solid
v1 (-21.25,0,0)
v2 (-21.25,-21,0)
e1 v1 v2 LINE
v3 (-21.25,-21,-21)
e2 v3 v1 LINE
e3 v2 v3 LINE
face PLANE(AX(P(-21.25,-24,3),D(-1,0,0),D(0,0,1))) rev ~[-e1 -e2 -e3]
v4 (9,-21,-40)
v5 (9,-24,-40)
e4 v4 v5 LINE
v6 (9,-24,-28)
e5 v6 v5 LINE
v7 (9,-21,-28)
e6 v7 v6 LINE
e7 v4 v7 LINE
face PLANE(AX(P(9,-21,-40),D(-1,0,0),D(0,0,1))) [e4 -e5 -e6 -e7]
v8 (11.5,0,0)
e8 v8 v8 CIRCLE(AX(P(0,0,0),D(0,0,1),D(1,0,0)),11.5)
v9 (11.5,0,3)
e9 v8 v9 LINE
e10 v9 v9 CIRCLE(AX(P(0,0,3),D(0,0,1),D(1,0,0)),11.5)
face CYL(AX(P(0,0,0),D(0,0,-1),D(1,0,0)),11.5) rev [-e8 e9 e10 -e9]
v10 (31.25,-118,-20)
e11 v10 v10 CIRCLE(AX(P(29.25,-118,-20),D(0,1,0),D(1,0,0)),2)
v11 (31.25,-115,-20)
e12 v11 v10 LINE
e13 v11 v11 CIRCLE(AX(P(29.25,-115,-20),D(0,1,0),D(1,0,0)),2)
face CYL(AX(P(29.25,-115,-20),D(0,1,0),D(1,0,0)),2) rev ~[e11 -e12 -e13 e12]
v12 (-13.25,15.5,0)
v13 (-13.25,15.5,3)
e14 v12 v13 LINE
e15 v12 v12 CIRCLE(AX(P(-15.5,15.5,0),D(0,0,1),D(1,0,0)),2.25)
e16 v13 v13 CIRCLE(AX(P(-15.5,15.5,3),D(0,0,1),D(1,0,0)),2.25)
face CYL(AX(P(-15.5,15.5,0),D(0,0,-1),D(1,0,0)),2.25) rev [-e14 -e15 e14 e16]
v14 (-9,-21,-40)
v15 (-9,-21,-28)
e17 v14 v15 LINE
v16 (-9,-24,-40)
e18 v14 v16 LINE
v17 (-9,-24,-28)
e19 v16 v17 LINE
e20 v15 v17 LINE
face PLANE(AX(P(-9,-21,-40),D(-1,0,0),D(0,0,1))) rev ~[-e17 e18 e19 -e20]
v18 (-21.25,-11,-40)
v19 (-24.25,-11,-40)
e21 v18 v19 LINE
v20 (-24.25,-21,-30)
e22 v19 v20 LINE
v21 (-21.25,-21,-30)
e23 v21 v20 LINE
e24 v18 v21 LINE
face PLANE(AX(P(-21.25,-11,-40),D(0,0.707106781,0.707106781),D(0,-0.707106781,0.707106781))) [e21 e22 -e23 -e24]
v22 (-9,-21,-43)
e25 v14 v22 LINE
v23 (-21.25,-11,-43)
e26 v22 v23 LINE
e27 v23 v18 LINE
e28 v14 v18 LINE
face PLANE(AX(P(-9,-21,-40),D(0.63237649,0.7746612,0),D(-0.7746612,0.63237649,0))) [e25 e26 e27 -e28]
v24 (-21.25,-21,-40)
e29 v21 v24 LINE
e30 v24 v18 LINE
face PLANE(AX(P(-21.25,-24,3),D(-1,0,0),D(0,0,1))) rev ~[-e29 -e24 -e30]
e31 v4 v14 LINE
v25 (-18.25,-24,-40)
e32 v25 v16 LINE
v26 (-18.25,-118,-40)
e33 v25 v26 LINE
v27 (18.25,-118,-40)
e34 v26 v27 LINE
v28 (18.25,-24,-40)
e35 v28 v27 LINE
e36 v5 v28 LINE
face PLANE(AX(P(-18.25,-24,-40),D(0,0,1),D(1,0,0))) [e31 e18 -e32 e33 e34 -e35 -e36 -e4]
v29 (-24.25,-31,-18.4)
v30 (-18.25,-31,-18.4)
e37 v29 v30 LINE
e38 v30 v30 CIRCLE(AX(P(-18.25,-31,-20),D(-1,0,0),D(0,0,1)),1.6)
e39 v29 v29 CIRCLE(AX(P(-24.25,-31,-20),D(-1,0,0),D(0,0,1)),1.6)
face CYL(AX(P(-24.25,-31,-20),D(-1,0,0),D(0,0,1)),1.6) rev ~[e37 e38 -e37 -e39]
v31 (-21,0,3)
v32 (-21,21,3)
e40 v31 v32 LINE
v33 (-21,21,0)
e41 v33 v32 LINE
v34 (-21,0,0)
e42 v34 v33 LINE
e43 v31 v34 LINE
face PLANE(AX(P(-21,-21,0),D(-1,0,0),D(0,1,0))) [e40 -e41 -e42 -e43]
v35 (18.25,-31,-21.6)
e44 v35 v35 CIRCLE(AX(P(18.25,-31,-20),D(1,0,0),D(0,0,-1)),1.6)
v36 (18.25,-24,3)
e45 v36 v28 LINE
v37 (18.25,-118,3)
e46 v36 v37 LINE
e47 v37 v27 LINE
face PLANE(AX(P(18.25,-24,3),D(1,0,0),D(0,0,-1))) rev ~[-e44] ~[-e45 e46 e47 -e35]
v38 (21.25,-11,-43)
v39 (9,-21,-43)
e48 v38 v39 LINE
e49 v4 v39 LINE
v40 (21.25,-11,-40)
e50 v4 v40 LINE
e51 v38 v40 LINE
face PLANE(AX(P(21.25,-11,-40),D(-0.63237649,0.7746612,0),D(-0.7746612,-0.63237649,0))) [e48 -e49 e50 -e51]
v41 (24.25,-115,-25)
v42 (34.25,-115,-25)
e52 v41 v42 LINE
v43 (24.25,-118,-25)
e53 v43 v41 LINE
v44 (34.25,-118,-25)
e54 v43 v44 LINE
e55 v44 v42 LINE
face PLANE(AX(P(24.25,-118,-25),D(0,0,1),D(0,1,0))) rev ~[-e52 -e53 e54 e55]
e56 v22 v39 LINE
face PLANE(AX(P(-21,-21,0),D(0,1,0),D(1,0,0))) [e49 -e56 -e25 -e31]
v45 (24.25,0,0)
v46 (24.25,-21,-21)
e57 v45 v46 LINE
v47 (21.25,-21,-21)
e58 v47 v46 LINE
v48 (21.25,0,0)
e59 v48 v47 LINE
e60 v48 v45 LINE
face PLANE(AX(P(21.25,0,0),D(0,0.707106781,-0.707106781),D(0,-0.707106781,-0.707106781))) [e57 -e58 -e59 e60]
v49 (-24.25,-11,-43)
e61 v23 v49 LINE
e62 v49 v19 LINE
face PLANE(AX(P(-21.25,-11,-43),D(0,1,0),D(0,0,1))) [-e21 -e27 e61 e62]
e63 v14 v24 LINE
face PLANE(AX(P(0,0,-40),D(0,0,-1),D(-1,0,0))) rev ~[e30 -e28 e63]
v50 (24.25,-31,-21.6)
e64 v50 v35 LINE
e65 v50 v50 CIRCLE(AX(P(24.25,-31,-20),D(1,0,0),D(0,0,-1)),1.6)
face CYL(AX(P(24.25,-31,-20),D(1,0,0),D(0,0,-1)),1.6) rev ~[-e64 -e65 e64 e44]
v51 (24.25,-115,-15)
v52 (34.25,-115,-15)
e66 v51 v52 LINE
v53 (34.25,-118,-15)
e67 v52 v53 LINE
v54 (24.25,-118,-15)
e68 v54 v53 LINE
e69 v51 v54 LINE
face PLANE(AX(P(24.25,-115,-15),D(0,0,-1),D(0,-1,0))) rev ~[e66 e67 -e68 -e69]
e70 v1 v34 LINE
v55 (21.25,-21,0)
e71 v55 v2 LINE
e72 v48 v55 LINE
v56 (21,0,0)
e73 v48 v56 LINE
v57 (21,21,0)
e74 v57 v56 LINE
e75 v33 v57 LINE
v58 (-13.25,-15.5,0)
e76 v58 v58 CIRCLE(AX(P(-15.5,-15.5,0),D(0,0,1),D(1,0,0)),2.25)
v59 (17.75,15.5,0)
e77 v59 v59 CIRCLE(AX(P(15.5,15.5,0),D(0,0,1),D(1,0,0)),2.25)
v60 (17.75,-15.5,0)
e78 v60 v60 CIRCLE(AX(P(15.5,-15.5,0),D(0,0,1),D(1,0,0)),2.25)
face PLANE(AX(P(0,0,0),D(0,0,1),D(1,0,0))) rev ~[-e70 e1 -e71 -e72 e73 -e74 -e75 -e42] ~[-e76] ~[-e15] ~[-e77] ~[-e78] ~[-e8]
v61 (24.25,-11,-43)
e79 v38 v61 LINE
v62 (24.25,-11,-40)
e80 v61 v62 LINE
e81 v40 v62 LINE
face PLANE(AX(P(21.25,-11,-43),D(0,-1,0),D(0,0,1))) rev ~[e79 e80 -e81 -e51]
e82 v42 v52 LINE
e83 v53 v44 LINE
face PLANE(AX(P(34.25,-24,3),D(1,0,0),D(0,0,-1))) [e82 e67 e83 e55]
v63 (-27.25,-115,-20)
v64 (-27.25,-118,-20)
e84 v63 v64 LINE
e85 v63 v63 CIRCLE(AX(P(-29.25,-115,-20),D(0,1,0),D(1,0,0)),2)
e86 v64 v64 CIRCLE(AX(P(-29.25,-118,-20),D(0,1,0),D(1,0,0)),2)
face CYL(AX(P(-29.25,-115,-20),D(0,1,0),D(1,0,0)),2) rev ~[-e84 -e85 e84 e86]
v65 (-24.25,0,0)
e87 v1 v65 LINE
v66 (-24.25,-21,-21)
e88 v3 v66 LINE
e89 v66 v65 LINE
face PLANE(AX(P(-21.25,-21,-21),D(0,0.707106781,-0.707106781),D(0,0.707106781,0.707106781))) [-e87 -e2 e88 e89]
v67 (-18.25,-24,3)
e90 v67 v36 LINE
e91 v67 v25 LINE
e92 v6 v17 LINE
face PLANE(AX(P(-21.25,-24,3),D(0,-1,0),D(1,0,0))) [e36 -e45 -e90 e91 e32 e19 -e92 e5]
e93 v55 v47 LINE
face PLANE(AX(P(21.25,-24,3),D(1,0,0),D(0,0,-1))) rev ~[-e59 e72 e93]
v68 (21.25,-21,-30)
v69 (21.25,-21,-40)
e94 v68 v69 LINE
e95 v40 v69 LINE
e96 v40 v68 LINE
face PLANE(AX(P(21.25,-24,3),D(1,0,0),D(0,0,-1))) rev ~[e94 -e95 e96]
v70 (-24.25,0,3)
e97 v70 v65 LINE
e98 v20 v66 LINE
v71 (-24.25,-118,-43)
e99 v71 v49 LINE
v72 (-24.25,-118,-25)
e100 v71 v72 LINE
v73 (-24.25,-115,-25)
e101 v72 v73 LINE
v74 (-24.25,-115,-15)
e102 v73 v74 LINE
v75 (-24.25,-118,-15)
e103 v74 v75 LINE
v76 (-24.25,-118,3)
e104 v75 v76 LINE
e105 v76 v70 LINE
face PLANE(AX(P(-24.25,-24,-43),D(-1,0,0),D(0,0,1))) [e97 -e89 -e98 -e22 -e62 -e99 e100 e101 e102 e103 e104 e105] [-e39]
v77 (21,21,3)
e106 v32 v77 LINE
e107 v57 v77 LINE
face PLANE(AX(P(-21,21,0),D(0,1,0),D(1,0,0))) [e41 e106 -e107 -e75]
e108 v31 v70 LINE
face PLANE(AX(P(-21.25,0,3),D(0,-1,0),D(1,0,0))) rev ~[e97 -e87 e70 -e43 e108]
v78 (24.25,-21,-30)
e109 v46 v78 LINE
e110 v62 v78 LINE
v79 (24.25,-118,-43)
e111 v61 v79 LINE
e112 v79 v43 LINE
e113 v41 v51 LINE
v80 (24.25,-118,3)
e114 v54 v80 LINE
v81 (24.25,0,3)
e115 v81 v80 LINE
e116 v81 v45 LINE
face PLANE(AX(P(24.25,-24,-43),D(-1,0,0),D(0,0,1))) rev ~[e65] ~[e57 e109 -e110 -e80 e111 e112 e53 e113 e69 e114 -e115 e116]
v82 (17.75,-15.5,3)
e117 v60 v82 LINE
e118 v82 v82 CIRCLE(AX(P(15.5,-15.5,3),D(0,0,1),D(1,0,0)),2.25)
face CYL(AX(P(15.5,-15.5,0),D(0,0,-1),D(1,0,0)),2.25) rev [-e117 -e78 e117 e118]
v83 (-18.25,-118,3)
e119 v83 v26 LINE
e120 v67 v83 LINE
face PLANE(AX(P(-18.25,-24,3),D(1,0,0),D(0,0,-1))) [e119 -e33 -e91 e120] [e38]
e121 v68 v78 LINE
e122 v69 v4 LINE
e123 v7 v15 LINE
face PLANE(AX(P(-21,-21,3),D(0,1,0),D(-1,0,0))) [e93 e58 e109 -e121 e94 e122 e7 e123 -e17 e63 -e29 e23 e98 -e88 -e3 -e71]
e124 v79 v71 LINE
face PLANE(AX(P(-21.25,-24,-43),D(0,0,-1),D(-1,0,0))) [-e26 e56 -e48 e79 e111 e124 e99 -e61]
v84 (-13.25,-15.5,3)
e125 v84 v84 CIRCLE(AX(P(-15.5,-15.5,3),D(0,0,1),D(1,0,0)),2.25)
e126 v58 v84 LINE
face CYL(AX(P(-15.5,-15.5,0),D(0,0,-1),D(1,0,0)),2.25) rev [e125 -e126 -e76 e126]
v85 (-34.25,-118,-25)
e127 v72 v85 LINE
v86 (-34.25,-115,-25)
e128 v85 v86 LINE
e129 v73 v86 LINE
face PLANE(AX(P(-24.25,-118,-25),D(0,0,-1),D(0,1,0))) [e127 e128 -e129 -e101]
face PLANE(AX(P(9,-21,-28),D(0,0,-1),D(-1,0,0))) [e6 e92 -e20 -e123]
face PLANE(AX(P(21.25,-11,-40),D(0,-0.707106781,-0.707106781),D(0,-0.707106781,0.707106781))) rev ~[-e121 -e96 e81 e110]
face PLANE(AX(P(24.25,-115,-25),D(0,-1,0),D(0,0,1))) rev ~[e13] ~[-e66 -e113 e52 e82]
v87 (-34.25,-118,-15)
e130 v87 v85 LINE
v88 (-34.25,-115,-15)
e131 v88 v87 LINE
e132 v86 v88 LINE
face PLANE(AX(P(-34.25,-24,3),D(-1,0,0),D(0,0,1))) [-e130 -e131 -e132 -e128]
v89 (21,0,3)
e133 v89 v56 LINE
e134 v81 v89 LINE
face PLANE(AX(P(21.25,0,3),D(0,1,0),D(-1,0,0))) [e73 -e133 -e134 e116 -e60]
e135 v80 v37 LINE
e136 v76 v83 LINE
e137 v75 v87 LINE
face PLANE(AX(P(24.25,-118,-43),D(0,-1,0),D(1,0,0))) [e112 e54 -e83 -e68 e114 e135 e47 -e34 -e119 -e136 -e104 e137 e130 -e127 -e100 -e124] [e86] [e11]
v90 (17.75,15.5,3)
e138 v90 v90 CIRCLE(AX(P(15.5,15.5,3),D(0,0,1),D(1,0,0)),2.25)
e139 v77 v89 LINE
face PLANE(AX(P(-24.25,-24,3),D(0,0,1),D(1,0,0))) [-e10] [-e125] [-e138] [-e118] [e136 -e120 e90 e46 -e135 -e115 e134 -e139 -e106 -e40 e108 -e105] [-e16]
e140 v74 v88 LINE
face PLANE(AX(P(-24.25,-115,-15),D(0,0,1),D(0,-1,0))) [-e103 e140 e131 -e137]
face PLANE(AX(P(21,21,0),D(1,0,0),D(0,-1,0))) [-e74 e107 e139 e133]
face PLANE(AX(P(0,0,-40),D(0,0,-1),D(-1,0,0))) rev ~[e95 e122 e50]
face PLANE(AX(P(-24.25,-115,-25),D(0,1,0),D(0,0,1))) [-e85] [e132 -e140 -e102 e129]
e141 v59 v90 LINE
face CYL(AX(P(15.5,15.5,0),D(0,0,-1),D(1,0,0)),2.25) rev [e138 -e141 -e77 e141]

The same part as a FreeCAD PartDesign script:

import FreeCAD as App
import Part
import Sketcher

doc = App.newDocument("Part")
body = doc.addObject("PartDesign::Body", "Body")

# Sketch on XY plane
sketch1 = body.newObject("Sketcher::SketchObject", "Sketch")
sketch1.AttachmentSupport = (doc.getObject("XY_Plane"), [""])
sketch1.MapMode = "FlatFace"
sketch1.addGeometry([
    Part.LineSegment(App.Vector(21, 21, 0), App.Vector(-21, 21, 0)),  # 0
    Part.LineSegment(App.Vector(-21, 21, 0), App.Vector(-21, -21, 0)),  # 1
    Part.LineSegment(App.Vector(-21, -21, 0), App.Vector(21, -21, 0)),  # 2
    Part.LineSegment(App.Vector(21, -21, 0), App.Vector(21, 21, 0)),  # 3
    Part.Circle(App.Vector(-15.5, -15.5, 0), App.Vector(0, 0, 1), 2.2),  # 4
    Part.Circle(App.Vector(15.5, -15.5, 0), App.Vector(0, 0, 1), 2.2),  # 5
    Part.Circle(App.Vector(-15.5, 15.5, 0), App.Vector(0, 0, 1), 2.2),  # 6
    Part.Circle(App.Vector(0, 0, 0), App.Vector(0, 0, 1), 11.5),  # 7
    Part.Circle(App.Vector(15.5, 15.5, 0), App.Vector(0, 0, 1), 2.2),  # 8
], False)
sketch1.addConstraint([
    Sketcher.Constraint("Coincident", 0, 2, 1, 1),
    Sketcher.Constraint("Coincident", 1, 2, 2, 1),
    Sketcher.Constraint("Coincident", 2, 2, 3, 1),
    Sketcher.Constraint("Coincident", 3, 2, 0, 1),
    Sketcher.Constraint("Horizontal", 0),
    Sketcher.Constraint("Vertical", 1),
    Sketcher.Constraint("Horizontal", 2),
    Sketcher.Constraint("Vertical", 3),
    Sketcher.Constraint("Coincident", 7, 3, -1, 1),
    Sketcher.Constraint("Equal", 4, 5),
    Sketcher.Constraint("Equal", 5, 6),
    Sketcher.Constraint("Equal", 6, 8),
    Sketcher.Constraint("Symmetric", 5, 3, 6, 3, -1, 1),
    Sketcher.Constraint("Symmetric", 4, 3, 8, 3, -1, 1),
    Sketcher.Constraint("Symmetric", 0, 2, 2, 2, -1, 1),
    Sketcher.Constraint("Symmetric", 4, 3, 5, 3, -2),
    Sketcher.Constraint("Equal", 2, 1),
    Sketcher.Constraint("Diameter", 7, 23.0),
    Sketcher.Constraint("Diameter", 4, 4.5),
    Sketcher.Constraint("DistanceX", 0, 2, 0, 1, 42.0),
    Sketcher.Constraint("DistanceX", 4, 3, 5, 3, 31.0),
    Sketcher.Constraint("DistanceY", 4, 3, 6, 3, 31.0),
])
pad1 = body.newObject("PartDesign::Pad", "Pad")
pad1.Profile = sketch1
pad1.Length = 3

# Sketch on XY plane
sketch2 = body.newObject("Sketcher::SketchObject", "Sketch001")
sketch2.AttachmentSupport = (doc.getObject("XY_Plane"), [""])
sketch2.MapMode = "FlatFace"
sketch2.AttachmentOffset = App.Placement(App.Vector(0, 0, 3), App.Rotation())
sketch2.addGeometry([
    Part.LineSegment(App.Vector(-21.2, -21, 0), App.Vector(-21.2, -24, 0)),
    Part.LineSegment(App.Vector(-21.2, -24, 0), App.Vector(21.2, -24, 0)),
    Part.LineSegment(App.Vector(21.2, -24, 0), App.Vector(21.2, -21, 0)),
    Part.LineSegment(App.Vector(21.2, -21, 0), App.Vector(-21.2, -21, 0)),
], False)
sketch2.addConstraint([
    Sketcher.Constraint("Coincident", 0, 2, 1, 1),
    Sketcher.Constraint("Coincident", 1, 2, 2, 1),
    Sketcher.Constraint("Coincident", 2, 2, 3, 1),
    Sketcher.Constraint("Coincident", 3, 2, 0, 1),
    Sketcher.Constraint("Vertical", 0),
    Sketcher.Constraint("Horizontal", 1),
    Sketcher.Constraint("Vertical", 2),
    Sketcher.Constraint("Horizontal", 3),
    Sketcher.Constraint("DistanceY", 0, 2, 0, 1, 3.0),
    Sketcher.Constraint("DistanceX", 1, 1, 1, 2, 42.5),
    Sketcher.Constraint("DistanceY", 0, 2, -1, 1, 24.0),
    Sketcher.Constraint("DistanceX", 0, 2, -1, 1, 21.25),
])
pad2 = body.newObject("PartDesign::Pad", "Pad001")
pad2.Profile = sketch2
pad2.Length = 43
pad2.Reversed = True

# Sketch on XZ plane
sketch3 = body.newObject("Sketcher::SketchObject", "Sketch002")
sketch3.AttachmentSupport = (doc.getObject("XZ_Plane"), [""])
sketch3.MapMode = "FlatFace"
sketch3.AttachmentOffset = App.Placement(App.Vector(0, 0, 21), App.Rotation())
sketch3.addGeometry([
    Part.LineSegment(App.Vector(-9, -28, 0), App.Vector(9, -28, 0)),
    Part.LineSegment(App.Vector(9, -28, 0), App.Vector(9, -40, 0)),
    Part.LineSegment(App.Vector(9, -40, 0), App.Vector(-9, -40, 0)),
    Part.LineSegment(App.Vector(-9, -40, 0), App.Vector(-9, -28, 0)),
], False)
sketch3.addConstraint([
    Sketcher.Constraint("Coincident", 0, 2, 1, 1),
    Sketcher.Constraint("Coincident", 1, 2, 2, 1),
    Sketcher.Constraint("Coincident", 2, 2, 3, 1),
    Sketcher.Constraint("Coincident", 3, 2, 0, 1),
    Sketcher.Constraint("Horizontal", 0),
    Sketcher.Constraint("Vertical", 1),
    Sketcher.Constraint("Horizontal", 2),
    Sketcher.Constraint("Vertical", 3),
    Sketcher.Constraint("DistanceX", 0, 1, 0, 2, 18.0),
    Sketcher.Constraint("DistanceY", 1, 2, 1, 1, 12.0),
    Sketcher.Constraint("DistanceX", -1, 1, 0, 2, 9.0),
    Sketcher.Constraint("DistanceY", 0, 2, -1, 1, 28.0),
])
pocket1 = body.newObject("PartDesign::Pocket", "Pocket")
pocket1.Profile = sketch3
pocket1.Length = 3
pocket1.Reversed = True

# Sketch on YZ plane
sketch4 = body.newObject("Sketcher::SketchObject", "Sketch003")
sketch4.AttachmentSupport = (doc.getObject("YZ_Plane"), [""])
sketch4.MapMode = "FlatFace"
sketch4.AttachmentOffset = App.Placement(App.Vector(0, 0, 21.25), App.Rotation())
sketch4.addGeometry([
    Part.LineSegment(App.Vector(-24, -30, 0), App.Vector(-24, -43, 0)),  # 0
    Part.LineSegment(App.Vector(-24, -43, 0), App.Vector(-11, -43, 0)),  # 1
    Part.LineSegment(App.Vector(-11, -43, 0), App.Vector(-11, -40, 0)),  # 2
    Part.LineSegment(App.Vector(-11, -40, 0), App.Vector(-21, -30, 0)),  # 3
    Part.LineSegment(App.Vector(-21, -30, 0), App.Vector(-24, -30, 0)),  # 4
    Part.LineSegment(App.Vector(-24, 3, 0), App.Vector(-24, -21, 0)),  # 5
    Part.LineSegment(App.Vector(-24, -21, 0), App.Vector(-21, -21, 0)),  # 6
    Part.LineSegment(App.Vector(-21, -21, 0), App.Vector(0, 0, 0)),  # 7
    Part.LineSegment(App.Vector(0, 0, 0), App.Vector(0, 3, 0)),  # 8
    Part.LineSegment(App.Vector(0, 3, 0), App.Vector(-24, 3, 0)),  # 9
], False)
sketch4.addConstraint([
    Sketcher.Constraint("Coincident", 0, 2, 1, 1),
    Sketcher.Constraint("Coincident", 1, 2, 2, 1),
    Sketcher.Constraint("Coincident", 2, 2, 3, 1),
    Sketcher.Constraint("Coincident", 3, 2, 4, 1),
    Sketcher.Constraint("Coincident", 4, 2, 0, 1),
    Sketcher.Constraint("Coincident", 5, 2, 6, 1),
    Sketcher.Constraint("Coincident", 6, 2, 7, 1),
    Sketcher.Constraint("Coincident", 7, 2, 8, 1),
    Sketcher.Constraint("Coincident", 8, 2, 9, 1),
    Sketcher.Constraint("Coincident", 9, 2, 5, 1),
    Sketcher.Constraint("Vertical", 0),
    Sketcher.Constraint("Horizontal", 1),
    Sketcher.Constraint("Vertical", 2),
    Sketcher.Constraint("Horizontal", 4),
    Sketcher.Constraint("Vertical", 5),
    Sketcher.Constraint("Horizontal", 6),
    Sketcher.Constraint("Vertical", 8),
    Sketcher.Constraint("Horizontal", 9),
    Sketcher.Constraint("Coincident", 7, 2, -1, 1),
    Sketcher.Constraint("Perpendicular", 3, 7),
    Sketcher.Constraint("Vertical", 4, 2, 5, 2),
    Sketcher.Constraint("Vertical", 3, 2, 6, 2),
    Sketcher.Constraint("Equal", 1, 0),
    Sketcher.Constraint("Equal", 6, 2),
    Sketcher.Constraint("Equal", 9, 5),
    Sketcher.Constraint("DistanceX", 1, 1, 1, 2, 13.0),
    Sketcher.Constraint("DistanceX", 4, 2, 4, 1, 3.0),
    Sketcher.Constraint("DistanceX", 9, 2, 9, 1, 24.0),
    Sketcher.Constraint("DistanceY", 0, 2, -1, 1, 43.0),
])
pad3 = body.newObject("PartDesign::Pad", "Pad002")
pad3.Profile = sketch4
pad3.Length = 3

# Sketch on YZ plane
sketch5 = body.newObject("Sketcher::SketchObject", "Sketch004")
sketch5.AttachmentSupport = (doc.getObject("YZ_Plane"), [""])
sketch5.MapMode = "FlatFace"
sketch5.AttachmentOffset = App.Placement(App.Vector(0, 0, -21.25), App.Rotation())
sketch5.addGeometry([
    Part.LineSegment(App.Vector(-11, -43, 0), App.Vector(-24, -43, 0)),  # 0
    Part.LineSegment(App.Vector(-24, -43, 0), App.Vector(-24, -30, 0)),  # 1
    Part.LineSegment(App.Vector(-24, -30, 0), App.Vector(-21, -30, 0)),  # 2
    Part.LineSegment(App.Vector(-21, -30, 0), App.Vector(-11, -40, 0)),  # 3
    Part.LineSegment(App.Vector(-11, -40, 0), App.Vector(-11, -43, 0)),  # 4
    Part.LineSegment(App.Vector(-21, -21, 0), App.Vector(-24, -21, 0)),  # 5
    Part.LineSegment(App.Vector(-24, -21, 0), App.Vector(-24, 3, 0)),  # 6
    Part.LineSegment(App.Vector(-24, 3, 0), App.Vector(0, 3, 0)),  # 7
    Part.LineSegment(App.Vector(0, 3, 0), App.Vector(0, 0, 0)),  # 8
    Part.LineSegment(App.Vector(0, 0, 0), App.Vector(-21, -21, 0)),  # 9
], False)
sketch5.addConstraint([
    Sketcher.Constraint("Coincident", 0, 2, 1, 1),
    Sketcher.Constraint("Coincident", 1, 2, 2, 1),
    Sketcher.Constraint("Coincident", 2, 2, 3, 1),
    Sketcher.Constraint("Coincident", 3, 2, 4, 1),
    Sketcher.Constraint("Coincident", 4, 2, 0, 1),
    Sketcher.Constraint("Coincident", 5, 2, 6, 1),
    Sketcher.Constraint("Coincident", 6, 2, 7, 1),
    Sketcher.Constraint("Coincident", 7, 2, 8, 1),
    Sketcher.Constraint("Coincident", 8, 2, 9, 1),
    Sketcher.Constraint("Coincident", 9, 2, 5, 1),
    Sketcher.Constraint("Horizontal", 0),
    Sketcher.Constraint("Vertical", 1),
    Sketcher.Constraint("Horizontal", 2),
    Sketcher.Constraint("Vertical", 4),
    Sketcher.Constraint("Horizontal", 5),
    Sketcher.Constraint("Vertical", 6),
    Sketcher.Constraint("Horizontal", 7),
    Sketcher.Constraint("Vertical", 8),
    Sketcher.Constraint("Coincident", 8, 2, -1, 1),
    Sketcher.Constraint("Perpendicular", 3, 9),
    Sketcher.Constraint("Vertical", 1, 2, 5, 2),
    Sketcher.Constraint("Vertical", 2, 2, 9, 2),
    Sketcher.Constraint("Equal", 0, 1),
    Sketcher.Constraint("Equal", 5, 4),
    Sketcher.Constraint("Equal", 7, 6),
    Sketcher.Constraint("DistanceX", 0, 2, 0, 1, 13.0),
    Sketcher.Constraint("DistanceX", 2, 1, 2, 2, 3.0),
    Sketcher.Constraint("DistanceX", 7, 1, 7, 2, 24.0),
    Sketcher.Constraint("DistanceY", 0, 2, -1, 1, 43.0),
])
pad4 = body.newObject("PartDesign::Pad", "Pad003")
pad4.Profile = sketch5
pad4.Length = 3
pad4.Reversed = True

# Sketch on XY plane
sketch6 = body.newObject("Sketcher::SketchObject", "Sketch005")
sketch6.AttachmentSupport = (doc.getObject("XY_Plane"), [""])
sketch6.MapMode = "FlatFace"
sketch6.AttachmentOffset = App.Placement(App.Vector(0, 0, -40), App.Rotation())
sketch6.addGeometry([
    Part.LineSegment(App.Vector(-21.2, -11, 0), App.Vector(-9, -21, 0)),  # 0
    Part.LineSegment(App.Vector(-9, -21, 0), App.Vector(-9, -24, 0)),  # 1
    Part.LineSegment(App.Vector(-9, -24, 0), App.Vector(-21.2, -24, 0)),  # 2
    Part.LineSegment(App.Vector(-21.2, -24, 0), App.Vector(-21.2, -11, 0)),  # 3
    Part.LineSegment(App.Vector(21.2, -24, 0), App.Vector(9, -24, 0)),  # 4
    Part.LineSegment(App.Vector(9, -24, 0), App.Vector(9, -21, 0)),  # 5
    Part.LineSegment(App.Vector(9, -21, 0), App.Vector(21.2, -11, 0)),  # 6
    Part.LineSegment(App.Vector(21.2, -11, 0), App.Vector(21.2, -24, 0)),  # 7
], False)
sketch6.addConstraint([
    Sketcher.Constraint("Coincident", 0, 2, 1, 1),
    Sketcher.Constraint("Coincident", 1, 2, 2, 1),
    Sketcher.Constraint("Coincident", 2, 2, 3, 1),
    Sketcher.Constraint("Coincident", 3, 2, 0, 1),
    Sketcher.Constraint("Coincident", 4, 2, 5, 1),
    Sketcher.Constraint("Coincident", 5, 2, 6, 1),
    Sketcher.Constraint("Coincident", 6, 2, 7, 1),
    Sketcher.Constraint("Coincident", 7, 2, 4, 1),
    Sketcher.Constraint("Vertical", 1),
    Sketcher.Constraint("Horizontal", 2),
    Sketcher.Constraint("Vertical", 3),
    Sketcher.Constraint("Horizontal", 4),
    Sketcher.Constraint("Vertical", 5),
    Sketcher.Constraint("Vertical", 7),
    Sketcher.Constraint("Symmetric", 1, 2, 4, 2, -2),
    Sketcher.Constraint("Symmetric", 3, 2, 6, 2, -2),
    Sketcher.Constraint("Horizontal", 0, 2, 5, 2),
    Sketcher.Constraint("DistanceY", 1, 2, 1, 1, 3.0),
    Sketcher.Constraint("DistanceY", 3, 1, 3, 2, 13.0),
    Sketcher.Constraint("DistanceX", 0, 2, -1, 1, 9.0),
    Sketcher.Constraint("DistanceY", 0, 2, -1, 1, 21.0),
    Sketcher.Constraint("DistanceX", 2, 2, 2, 1, 12.25),
])
pad5 = body.newObject("PartDesign::Pad", "Pad004")
pad5.Profile = sketch6
pad5.Length = 3
pad5.Reversed = True

# Sketch on XZ plane
sketch7 = body.newObject("Sketcher::SketchObject", "Sketch006")
sketch7.AttachmentSupport = (doc.getObject("XZ_Plane"), [""])
sketch7.MapMode = "FlatFace"
sketch7.AttachmentOffset = App.Placement(App.Vector(0, 0, 21), App.Rotation())
sketch7.addGeometry([
    Part.LineSegment(App.Vector(24.2, -21, 0), App.Vector(24.2, -30, 0)),  # 0
    Part.LineSegment(App.Vector(24.2, -30, 0), App.Vector(21.2, -30, 0)),  # 1
    Part.LineSegment(App.Vector(21.2, -30, 0), App.Vector(21.2, -21, 0)),  # 2
    Part.LineSegment(App.Vector(21.2, -21, 0), App.Vector(24.2, -21, 0)),  # 3
    Part.LineSegment(App.Vector(-9, -40, 0), App.Vector(9, -40, 0)),  # 4
    Part.LineSegment(App.Vector(9, -40, 0), App.Vector(9, -43, 0)),  # 5
    Part.LineSegment(App.Vector(9, -43, 0), App.Vector(-9, -43, 0)),  # 6
    Part.LineSegment(App.Vector(-9, -43, 0), App.Vector(-9, -40, 0)),  # 7
    Part.LineSegment(App.Vector(-24.2, -21, 0), App.Vector(-21.2, -21, 0)),  # 8
    Part.LineSegment(App.Vector(-21.2, -21, 0), App.Vector(-21.2, -30, 0)),  # 9
    Part.LineSegment(App.Vector(-21.2, -30, 0), App.Vector(-24.2, -30, 0)),  # 10
    Part.LineSegment(App.Vector(-24.2, -30, 0), App.Vector(-24.2, -21, 0)),  # 11
], False)
sketch7.addConstraint([
    Sketcher.Constraint("Coincident", 0, 2, 1, 1),
    Sketcher.Constraint("Coincident", 1, 2, 2, 1),
    Sketcher.Constraint("Coincident", 2, 2, 3, 1),
    Sketcher.Constraint("Coincident", 3, 2, 0, 1),
    Sketcher.Constraint("Coincident", 4, 2, 5, 1),
    Sketcher.Constraint("Coincident", 5, 2, 6, 1),
    Sketcher.Constraint("Coincident", 6, 2, 7, 1),
    Sketcher.Constraint("Coincident", 7, 2, 4, 1),
    Sketcher.Constraint("Coincident", 8, 2, 9, 1),
    Sketcher.Constraint("Coincident", 9, 2, 10, 1),
    Sketcher.Constraint("Coincident", 10, 2, 11, 1),
    Sketcher.Constraint("Coincident", 11, 2, 8, 1),
    Sketcher.Constraint("Vertical", 0),
    Sketcher.Constraint("Horizontal", 1),
    Sketcher.Constraint("Vertical", 2),
    Sketcher.Constraint("Horizontal", 3),
    Sketcher.Constraint("Horizontal", 4),
    Sketcher.Constraint("Vertical", 5),
    Sketcher.Constraint("Horizontal", 6),
    Sketcher.Constraint("Vertical", 7),
    Sketcher.Constraint("Horizontal", 8),
    Sketcher.Constraint("Vertical", 9),
    Sketcher.Constraint("Horizontal", 10),
    Sketcher.Constraint("Vertical", 11),
    Sketcher.Constraint("Symmetric", 2, 2, 8, 2, -2),
    Sketcher.Constraint("Symmetric", 0, 2, 10, 2, -2),
    Sketcher.Constraint("Equal", 10, 5),
    Sketcher.Constraint("DistanceX", 1, 2, 1, 1, 3.0),
    Sketcher.Constraint("DistanceX", 4, 1, 4, 2, 18.0),
    Sketcher.Constraint("DistanceY", 0, 2, 0, 1, 9.0),
    Sketcher.Constraint("DistanceY", 0, 2, -1, 1, 30.0),
    Sketcher.Constraint("DistanceX", -1, 1, 4, 2, 9.0),
    Sketcher.Constraint("DistanceY", 4, 2, -1, 1, 40.0),
    Sketcher.Constraint("DistanceX", 8, 2, 2, 2, 42.5),
])
pad6 = body.newObject("PartDesign::Pad", "Pad005")
pad6.Profile = sketch7
pad6.Length = 3

# Sketch on XY plane
sketch8 = body.newObject("Sketcher::SketchObject", "Sketch007")
sketch8.AttachmentSupport = (doc.getObject("XY_Plane"), [""])
sketch8.MapMode = "FlatFace"
sketch8.AttachmentOffset = App.Placement(App.Vector(0, 0, 3), App.Rotation())
sketch8.addGeometry([
    Part.LineSegment(App.Vector(-21, 0, 0), App.Vector(-21.25, 0, 0)),  # 0
    Part.LineSegment(App.Vector(-21.25, 0, 0), App.Vector(-21.25, -21, 0)),  # 1
    Part.LineSegment(App.Vector(-21.25, -21, 0), App.Vector(-21, -21, 0)),  # 2
    Part.LineSegment(App.Vector(-21, -21, 0), App.Vector(-21, 0, 0)),  # 3
    Part.LineSegment(App.Vector(21, 0, 0), App.Vector(21, -21, 0)),  # 4
    Part.LineSegment(App.Vector(21, -21, 0), App.Vector(21.25, -21, 0)),  # 5
    Part.LineSegment(App.Vector(21.25, -21, 0), App.Vector(21.25, 0, 0)),  # 6
    Part.LineSegment(App.Vector(21.25, 0, 0), App.Vector(21, 0, 0)),  # 7
], False)
sketch8.addConstraint([
    Sketcher.Constraint("Coincident", 0, 2, 1, 1),
    Sketcher.Constraint("Coincident", 1, 2, 2, 1),
    Sketcher.Constraint("Coincident", 2, 2, 3, 1),
    Sketcher.Constraint("Coincident", 3, 2, 0, 1),
    Sketcher.Constraint("Coincident", 4, 2, 5, 1),
    Sketcher.Constraint("Coincident", 5, 2, 6, 1),
    Sketcher.Constraint("Coincident", 6, 2, 7, 1),
    Sketcher.Constraint("Coincident", 7, 2, 4, 1),
    Sketcher.Constraint("Horizontal", 0),
    Sketcher.Constraint("Vertical", 1),
    Sketcher.Constraint("Horizontal", 2),
    Sketcher.Constraint("Vertical", 3),
    Sketcher.Constraint("Vertical", 4),
    Sketcher.Constraint("Horizontal", 5),
    Sketcher.Constraint("Vertical", 6),
    Sketcher.Constraint("Horizontal", 7),
    Sketcher.Constraint("Symmetric", 0, 2, 6, 2, -1, 1),
    Sketcher.Constraint("Symmetric", 2, 2, 4, 2, -2),
    Sketcher.Constraint("PointOnObject", 0, 2, -1),
    Sketcher.Constraint("DistanceY", 1, 2, 1, 1, 21.0),
    Sketcher.Constraint("DistanceX", 2, 2, -1, 1, 21.0),
    Sketcher.Constraint("DistanceX", 0, 2, 0, 1, 0.25),
])
pad7 = body.newObject("PartDesign::Pad", "Pad006")
pad7.Profile = sketch8
pad7.Length = 3
pad7.Reversed = True

# Sketch on XZ plane
sketch9 = body.newObject("Sketcher::SketchObject", "Sketch008")
sketch9.AttachmentSupport = (doc.getObject("XZ_Plane"), [""])
sketch9.MapMode = "FlatFace"
sketch9.AttachmentOffset = App.Placement(App.Vector(0, 0, 24), App.Rotation())
sketch9.addGeometry([
    Part.LineSegment(App.Vector(-24, -43, 0), App.Vector(24, -43, 0)),  # 0
    Part.LineSegment(App.Vector(24, -43, 0), App.Vector(24, 3, 0)),  # 1
    Part.LineSegment(App.Vector(24, 3, 0), App.Vector(18, 3, 0)),  # 2
    Part.LineSegment(App.Vector(18, 3, 0), App.Vector(18, -40, 0)),  # 3
    Part.LineSegment(App.Vector(18, -40, 0), App.Vector(-18, -40, 0)),  # 4
    Part.LineSegment(App.Vector(-18, -40, 0), App.Vector(-18, 3, 0)),  # 5
    Part.LineSegment(App.Vector(-18, 3, 0), App.Vector(-24, 3, 0)),  # 6
    Part.LineSegment(App.Vector(-24, 3, 0), App.Vector(-24, -43, 0)),  # 7
], False)
sketch9.addConstraint([
    Sketcher.Constraint("Coincident", 0, 2, 1, 1),
    Sketcher.Constraint("Coincident", 1, 2, 2, 1),
    Sketcher.Constraint("Coincident", 2, 2, 3, 1),
    Sketcher.Constraint("Coincident", 3, 2, 4, 1),
    Sketcher.Constraint("Coincident", 4, 2, 5, 1),
    Sketcher.Constraint("Coincident", 5, 2, 6, 1),
    Sketcher.Constraint("Coincident", 6, 2, 7, 1),
    Sketcher.Constraint("Coincident", 7, 2, 0, 1),
    Sketcher.Constraint("Horizontal", 0),
    Sketcher.Constraint("Vertical", 1),
    Sketcher.Constraint("Horizontal", 2),
    Sketcher.Constraint("Vertical", 3),
    Sketcher.Constraint("Horizontal", 4),
    Sketcher.Constraint("Vertical", 5),
    Sketcher.Constraint("Horizontal", 6),
    Sketcher.Constraint("Vertical", 7),
    Sketcher.Constraint("Symmetric", 2, 2, 5, 2, -2),
    Sketcher.Constraint("Equal", 2, 6),
    Sketcher.Constraint("DistanceX", 2, 2, 2, 1, 6.0),
    Sketcher.Constraint("DistanceY", 1, 1, 1, 2, 46.0),
    Sketcher.Constraint("DistanceY", 3, 2, 3, 1, 43.0),
    Sketcher.Constraint("DistanceX", 0, 1, 0, 2, 48.5),
    Sketcher.Constraint("DistanceY", 0, 2, -1, 1, 43.0),
])
pad8 = body.newObject("PartDesign::Pad", "Pad007")
pad8.Profile = sketch9
pad8.Length = 94

# Sketch on YZ plane
sketch10 = body.newObject("Sketcher::SketchObject", "Sketch009")
sketch10.AttachmentSupport = (doc.getObject("YZ_Plane"), [""])
sketch10.MapMode = "FlatFace"
sketch10.AttachmentOffset = App.Placement(App.Vector(0, 0, 24.25), App.Rotation())
sketch10.addGeometry([
    Part.LineSegment(App.Vector(-115, -15, 0), App.Vector(-118, -15, 0)),
    Part.LineSegment(App.Vector(-118, -15, 0), App.Vector(-118, -25, 0)),
    Part.LineSegment(App.Vector(-118, -25, 0), App.Vector(-115, -25, 0)),
    Part.LineSegment(App.Vector(-115, -25, 0), App.Vector(-115, -15, 0)),
], False)
sketch10.addConstraint([
    Sketcher.Constraint("Coincident", 0, 2, 1, 1),
    Sketcher.Constraint("Coincident", 1, 2, 2, 1),
    Sketcher.Constraint("Coincident", 2, 2, 3, 1),
    Sketcher.Constraint("Coincident", 3, 2, 0, 1),
    Sketcher.Constraint("Horizontal", 0),
    Sketcher.Constraint("Vertical", 1),
    Sketcher.Constraint("Horizontal", 2),
    Sketcher.Constraint("Vertical", 3),
    Sketcher.Constraint("DistanceX", 0, 2, 0, 1, 3.0),
    Sketcher.Constraint("DistanceY", 1, 2, 1, 1, 10.0),
    Sketcher.Constraint("DistanceX", 0, 2, -1, 1, 118.0),
    Sketcher.Constraint("DistanceY", 0, 2, -1, 1, 15.0),
])
pad9 = body.newObject("PartDesign::Pad", "Pad008")
pad9.Profile = sketch10
pad9.Length = 10

# Sketch on YZ plane
sketch11 = body.newObject("Sketcher::SketchObject", "Sketch010")
sketch11.AttachmentSupport = (doc.getObject("YZ_Plane"), [""])
sketch11.MapMode = "FlatFace"
sketch11.AttachmentOffset = App.Placement(App.Vector(0, 0, -24.25), App.Rotation())
sketch11.addGeometry([
    Part.LineSegment(App.Vector(-118, -25, 0), App.Vector(-118, -15, 0)),
    Part.LineSegment(App.Vector(-118, -15, 0), App.Vector(-115, -15, 0)),
    Part.LineSegment(App.Vector(-115, -15, 0), App.Vector(-115, -25, 0)),
    Part.LineSegment(App.Vector(-115, -25, 0), App.Vector(-118, -25, 0)),
], False)
sketch11.addConstraint([
    Sketcher.Constraint("Coincident", 0, 2, 1, 1),
    Sketcher.Constraint("Coincident", 1, 2, 2, 1),
    Sketcher.Constraint("Coincident", 2, 2, 3, 1),
    Sketcher.Constraint("Coincident", 3, 2, 0, 1),
    Sketcher.Constraint("Vertical", 0),
    Sketcher.Constraint("Horizontal", 1),
    Sketcher.Constraint("Vertical", 2),
    Sketcher.Constraint("Horizontal", 3),
    Sketcher.Constraint("DistanceX", 1, 1, 1, 2, 3.0),
    Sketcher.Constraint("DistanceY", 0, 1, 0, 2, 10.0),
    Sketcher.Constraint("DistanceX", 0, 2, -1, 1, 118.0),
    Sketcher.Constraint("DistanceY", 0, 2, -1, 1, 15.0),
])
pad10 = body.newObject("PartDesign::Pad", "Pad009")
pad10.Profile = sketch11
pad10.Length = 10
pad10.Reversed = True

# Sketch on XZ plane
sketch12 = body.newObject("Sketcher::SketchObject", "Sketch011")
sketch12.AttachmentSupport = (doc.getObject("XZ_Plane"), [""])
sketch12.MapMode = "FlatFace"
sketch12.AttachmentOffset = App.Placement(App.Vector(0, 0, 115), App.Rotation())
sketch12.addGeometry([
    Part.Circle(App.Vector(-29.2, -20, 0), App.Vector(0, 0, 1), 2),
    Part.Circle(App.Vector(29.2, -20, 0), App.Vector(0, 0, 1), 2),
], False)
sketch12.addConstraint([
    Sketcher.Constraint("Equal", 0, 1),
    Sketcher.Constraint("Symmetric", 0, 3, 1, 3, -2),
    Sketcher.Constraint("Diameter", 0, 4.0),
    Sketcher.Constraint("DistanceY", 0, 3, -1, 1, 20.0),
    Sketcher.Constraint("DistanceX", 0, 3, 1, 3, 58.5),
])
pocket2 = body.newObject("PartDesign::Pocket", "Pocket001")
pocket2.Profile = sketch12
pocket2.Length = 3
pocket2.Reversed = True

# Sketch on YZ plane
sketch13 = body.newObject("Sketcher::SketchObject", "Sketch012")
sketch13.AttachmentSupport = (doc.getObject("YZ_Plane"), [""])
sketch13.MapMode = "FlatFace"
sketch13.AttachmentOffset = App.Placement(App.Vector(0, 0, 24.25), App.Rotation())
sketch13.addGeometry(Part.Circle(App.Vector(-31, -20, 0), App.Vector(0, 0, 1), 1.6), False)
sketch13.addConstraint([
    Sketcher.Constraint("Diameter", 0, 3.2),
    Sketcher.Constraint("DistanceX", 0, 3, -1, 1, 31.0),
    Sketcher.Constraint("DistanceY", 0, 3, -1, 1, 20.0),
])
pocket3 = body.newObject("PartDesign::Pocket", "Pocket002")
pocket3.Profile = sketch13
pocket3.Length = 10

# Sketch on YZ plane
sketch14 = body.newObject("Sketcher::SketchObject", "Sketch013")
sketch14.AttachmentSupport = (doc.getObject("YZ_Plane"), [""])
sketch14.MapMode = "FlatFace"
sketch14.AttachmentOffset = App.Placement(App.Vector(0, 0, -24.25), App.Rotation())
sketch14.addGeometry(Part.Circle(App.Vector(-31, -20, 0), App.Vector(0, 0, 1), 1.6), False)
sketch14.addConstraint([
    Sketcher.Constraint("Diameter", 0, 3.2),
    Sketcher.Constraint("DistanceX", 0, 3, -1, 1, 31.0),
    Sketcher.Constraint("DistanceY", 0, 3, -1, 1, 20.0),
])
pocket4 = body.newObject("PartDesign::Pocket", "Pocket003")
pocket4.Profile = sketch14
pocket4.Length = 10
pocket4.Reversed = True

doc.recompute()
